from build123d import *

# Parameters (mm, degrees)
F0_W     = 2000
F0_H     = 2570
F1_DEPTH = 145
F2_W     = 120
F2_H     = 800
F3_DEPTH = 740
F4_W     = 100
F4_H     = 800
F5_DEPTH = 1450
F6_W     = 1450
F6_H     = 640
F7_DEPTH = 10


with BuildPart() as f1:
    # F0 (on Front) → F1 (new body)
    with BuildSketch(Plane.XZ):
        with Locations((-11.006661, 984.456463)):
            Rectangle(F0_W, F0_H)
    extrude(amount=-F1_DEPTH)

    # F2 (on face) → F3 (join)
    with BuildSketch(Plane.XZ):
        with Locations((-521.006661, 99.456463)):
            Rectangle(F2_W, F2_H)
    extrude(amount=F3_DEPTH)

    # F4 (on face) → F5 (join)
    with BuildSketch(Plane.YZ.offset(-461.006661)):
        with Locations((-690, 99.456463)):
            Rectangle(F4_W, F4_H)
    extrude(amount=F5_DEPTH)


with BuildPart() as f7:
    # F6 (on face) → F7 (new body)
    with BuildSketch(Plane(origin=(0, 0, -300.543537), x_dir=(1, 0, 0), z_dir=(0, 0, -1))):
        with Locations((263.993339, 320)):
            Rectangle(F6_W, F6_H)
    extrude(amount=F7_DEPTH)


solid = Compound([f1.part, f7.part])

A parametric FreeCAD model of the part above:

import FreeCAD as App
import Part
import Sketcher

V = App.Vector

doc = App.newDocument("Part")
body = doc.addObject("PartDesign::Body", "Body")

sketch1 = doc.addObject("Sketcher::SketchObject", "Sketch")
body.addObject(sketch1)
sketch1.AttachmentSupport = (doc.XZ_Plane, [""])
sketch1.MapMode = "FlatFace"
sketch1.addGeometry(Part.LineSegment(V(-1011, 2269, 0), V(-1011, -301, 0)), False)
sketch1.addGeometry(Part.LineSegment(V(-1011, -301, 0), V(989, -301, 0)), False)
sketch1.addGeometry(Part.LineSegment(V(989, -301, 0), V(989, 2269, 0)), False)
sketch1.addGeometry(Part.LineSegment(V(989, 2269, 0), V(-1011, 2269, 0)), False)
sketch1.addConstraint(Sketcher.Constraint("Coincident", 0, 2, 1, 1))
sketch1.addConstraint(Sketcher.Constraint("Coincident", 1, 2, 2, 1))
sketch1.addConstraint(Sketcher.Constraint("Coincident", 2, 2, 3, 1))
sketch1.addConstraint(Sketcher.Constraint("Coincident", 3, 2, 0, 1))
sketch1.addConstraint(Sketcher.Constraint("Vertical", 0))
sketch1.addConstraint(Sketcher.Constraint("Horizontal", 1))
sketch1.addConstraint(Sketcher.Constraint("Vertical", 2))
sketch1.addConstraint(Sketcher.Constraint("Horizontal", 3))
sketch1.addConstraint(Sketcher.Constraint("DistanceX", 1, 1, 1, 2, 2000.0))
sketch1.addConstraint(Sketcher.Constraint("DistanceY", 0, 2, 0, 1, 2570.0))
sketch1.addConstraint(Sketcher.Constraint("DistanceX", 0, 2, -1, 1, 1011.006661))
sketch1.addConstraint(Sketcher.Constraint("DistanceY", 0, 2, -1, 1, 300.543537))
pad1 = doc.addObject("PartDesign::Pad", "Pad")
body.addObject(pad1)
pad1.Profile = sketch1
pad1.Length = 145
pad1.Reversed = True

sketch2 = doc.addObject("Sketcher::SketchObject", "Sketch001")
body.addObject(sketch2)
sketch2.AttachmentSupport = (doc.XZ_Plane, [""])
sketch2.MapMode = "FlatFace"
sketch2.addGeometry(Part.LineSegment(V(-581, 499, 0), V(-581, -301, 0)), False)
sketch2.addGeometry(Part.LineSegment(V(-581, -301, 0), V(-461, -301, 0)), False)
sketch2.addGeometry(Part.LineSegment(V(-461, -301, 0), V(-461, 499, 0)), False)
sketch2.addGeometry(Part.LineSegment(V(-461, 499, 0), V(-581, 499, 0)), False)
sketch2.addConstraint(Sketcher.Constraint("Coincident", 0, 2, 1, 1))
sketch2.addConstraint(Sketcher.Constraint("Coincident", 1, 2, 2, 1))
sketch2.addConstraint(Sketcher.Constraint("Coincident", 2, 2, 3, 1))
sketch2.addConstraint(Sketcher.Constraint("Coincident", 3, 2, 0, 1))
sketch2.addConstraint(Sketcher.Constraint("Vertical", 0))
sketch2.addConstraint(Sketcher.Constraint("Horizontal", 1))
sketch2.addConstraint(Sketcher.Constraint("Vertical", 2))
sketch2.addConstraint(Sketcher.Constraint("Horizontal", 3))
sketch2.addConstraint(Sketcher.Constraint("DistanceX", 1, 1, 1, 2, 120.0))
sketch2.addConstraint(Sketcher.Constraint("DistanceY", 0, 2, 0, 1, 800.0))
sketch2.addConstraint(Sketcher.Constraint("DistanceX", 0, 2, -1, 1, 581.006661))
sketch2.addConstraint(Sketcher.Constraint("DistanceY", 0, 2, -1, 1, 300.543537))
pad2 = doc.addObject("PartDesign::Pad", "Pad001")
body.addObject(pad2)
pad2.Profile = sketch2
pad2.Length = 740

sketch3 = doc.addObject("Sketcher::SketchObject", "Sketch002")
body.addObject(sketch3)
sketch3.AttachmentSupport = (doc.YZ_Plane, [""])
sketch3.MapMode = "FlatFace"
sketch3.AttachmentOffset = App.Placement(V(0, 0, -461.006661), App.Rotation())
sketch3.addGeometry(Part.LineSegment(V(-740, 499, 0), V(-740, -301, 0)), False)
sketch3.addGeometry(Part.LineSegment(V(-740, -301, 0), V(-640, -301, 0)), False)
sketch3.addGeometry(Part.LineSegment(V(-640, -301, 0), V(-640, 499, 0)), False)
sketch3.addGeometry(Part.LineSegment(V(-640, 499, 0), V(-740, 499, 0)), False)
sketch3.addConstraint(Sketcher.Constraint("Coincident", 0, 2, 1, 1))
sketch3.addConstraint(Sketcher.Constraint("Coincident", 1, 2, 2, 1))
sketch3.addConstraint(Sketcher.Constraint("Coincident", 2, 2, 3, 1))
sketch3.addConstraint(Sketcher.Constraint("Coincident", 3, 2, 0, 1))
sketch3.addConstraint(Sketcher.Constraint("Vertical", 0))
sketch3.addConstraint(Sketcher.Constraint("Horizontal", 1))
sketch3.addConstraint(Sketcher.Constraint("Vertical", 2))
sketch3.addConstraint(Sketcher.Constraint("Horizontal", 3))
sketch3.addConstraint(Sketcher.Constraint("DistanceX", 1, 1, 1, 2, 100.0))
sketch3.addConstraint(Sketcher.Constraint("DistanceY", 0, 2, 0, 1, 800.0))
sketch3.addConstraint(Sketcher.Constraint("DistanceX", 0, 2, -1, 1, 740.0))
sketch3.addConstraint(Sketcher.Constraint("DistanceY", 0, 2, -1, 1, 300.543537))
pad3 = doc.addObject("PartDesign::Pad", "Pad002")
body.addObject(pad3)
pad3.Profile = sketch3
pad3.Length = 1450
body2 = doc.addObject("PartDesign::Body", "Body001")

sketch4 = doc.addObject("Sketcher::SketchObject", "Sketch003")
body2.addObject(sketch4)
sketch4.AttachmentSupport = (doc.getObject("XY_Plane001"), [""])
sketch4.MapMode = "FlatFace"
sketch4.AttachmentOffset = App.Placement(V(0, 0, -300.543537), App.Rotation())
sketch4.addGeometry(Part.LineSegment(V(-461, -640, 0), V(-461, 0, 0)), False)
sketch4.addGeometry(Part.LineSegment(V(-461, 0, 0), V(989, 0, 0)), False)
sketch4.addGeometry(Part.LineSegment(V(989, 0, 0), V(989, -640, 0)), False)
sketch4.addGeometry(Part.LineSegment(V(989, -640, 0), V(-461, -640, 0)), False)
sketch4.addConstraint(Sketcher.Constraint("Coincident", 0, 2, 1, 1))
sketch4.addConstraint(Sketcher.Constraint("Coincident", 1, 2, 2, 1))
sketch4.addConstraint(Sketcher.Constraint("Coincident", 2, 2, 3, 1))
sketch4.addConstraint(Sketcher.Constraint("Coincident", 3, 2, 0, 1))
sketch4.addConstraint(Sketcher.Constraint("Vertical", 0))
sketch4.addConstraint(Sketcher.Constraint("Horizontal", 1))
sketch4.addConstraint(Sketcher.Constraint("Vertical", 2))
sketch4.addConstraint(Sketcher.Constraint("Horizontal", 3))
sketch4.addConstraint(Sketcher.Constraint("PointOnObject", 0, 2, -1))
sketch4.addConstraint(Sketcher.Constraint("DistanceX", 1, 1, 1, 2, 1450.0))
sketch4.addConstraint(Sketcher.Constraint("DistanceY", 0, 1, 0, 2, 640.0))
sketch4.addConstraint(Sketcher.Constraint("DistanceX", 0, 2, -1, 1, 461.006661))
pad4 = doc.addObject("PartDesign::Pad", "Pad003")
body2.addObject(pad4)
pad4.Profile = sketch4
pad4.Length = 10
pad4.Reversed = True

doc.recompute()
